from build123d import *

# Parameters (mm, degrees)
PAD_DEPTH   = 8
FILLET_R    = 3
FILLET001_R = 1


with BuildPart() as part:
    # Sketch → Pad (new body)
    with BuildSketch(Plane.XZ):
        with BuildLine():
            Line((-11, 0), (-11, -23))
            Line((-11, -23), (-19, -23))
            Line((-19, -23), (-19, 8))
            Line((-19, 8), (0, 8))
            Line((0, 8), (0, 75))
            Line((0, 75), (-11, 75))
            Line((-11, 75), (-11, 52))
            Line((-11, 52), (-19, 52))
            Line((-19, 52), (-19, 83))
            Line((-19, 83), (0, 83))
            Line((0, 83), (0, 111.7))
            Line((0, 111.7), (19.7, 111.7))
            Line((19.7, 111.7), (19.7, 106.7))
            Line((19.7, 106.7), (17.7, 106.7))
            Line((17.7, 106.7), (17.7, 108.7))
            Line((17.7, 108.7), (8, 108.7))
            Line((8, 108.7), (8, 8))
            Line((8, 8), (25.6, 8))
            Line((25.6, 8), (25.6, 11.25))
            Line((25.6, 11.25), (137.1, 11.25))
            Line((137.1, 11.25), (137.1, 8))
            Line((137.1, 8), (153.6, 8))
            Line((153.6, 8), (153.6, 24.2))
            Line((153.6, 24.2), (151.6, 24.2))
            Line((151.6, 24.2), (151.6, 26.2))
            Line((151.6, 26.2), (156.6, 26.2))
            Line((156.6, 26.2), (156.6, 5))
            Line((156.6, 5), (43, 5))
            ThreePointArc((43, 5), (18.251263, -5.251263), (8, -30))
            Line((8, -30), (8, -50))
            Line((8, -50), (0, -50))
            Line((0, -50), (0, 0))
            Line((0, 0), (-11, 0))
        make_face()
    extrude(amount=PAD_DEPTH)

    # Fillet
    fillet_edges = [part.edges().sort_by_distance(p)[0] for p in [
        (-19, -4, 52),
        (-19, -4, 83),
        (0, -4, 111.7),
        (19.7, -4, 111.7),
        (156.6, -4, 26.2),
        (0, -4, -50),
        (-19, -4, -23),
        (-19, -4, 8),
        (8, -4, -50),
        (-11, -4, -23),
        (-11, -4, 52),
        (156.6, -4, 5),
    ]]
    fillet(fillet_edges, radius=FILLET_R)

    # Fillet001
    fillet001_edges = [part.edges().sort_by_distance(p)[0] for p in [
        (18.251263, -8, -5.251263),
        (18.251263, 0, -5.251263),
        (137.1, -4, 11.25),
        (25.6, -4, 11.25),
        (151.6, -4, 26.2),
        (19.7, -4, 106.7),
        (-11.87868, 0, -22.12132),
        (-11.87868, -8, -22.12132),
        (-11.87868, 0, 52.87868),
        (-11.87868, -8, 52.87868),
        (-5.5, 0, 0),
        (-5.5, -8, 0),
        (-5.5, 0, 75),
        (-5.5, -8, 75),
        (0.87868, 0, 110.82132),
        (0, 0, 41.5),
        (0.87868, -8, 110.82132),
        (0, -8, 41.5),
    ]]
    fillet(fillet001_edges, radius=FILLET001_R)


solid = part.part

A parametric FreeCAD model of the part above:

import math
import FreeCAD as App
import Part
import Sketcher


def edges_at(feature, points):
    """Names of the edges that pass closest to the given points."""
    edges = feature.Shape.Edges
    near = lambda p: min(range(len(edges)), key=lambda i: edges[i].distToShape(Part.Vertex(*p))[0])
    return sorted({f"Edge{near(p) + 1}" for p in points})

doc = App.newDocument("Part")
params = doc.addObject("Spreadsheet::Sheet", "Params")
for row, (alias, value) in enumerate([
    ("sketch1_radius", "35.000001 mm"),
    ("sketch1_width", "11 mm"),
    ("sketch1_width2", "8 mm"),
    ("sketch1_width3", "5 mm"),
    ("sketch1_width4", "2 mm"),
    ("pad1_length", "8 mm"),
    ("fillet_radius", "3 mm"),
    ("fillet2_radius", "1 mm"),
], start=1):
    params.set(f"A{row}", alias)
    params.set(f"B{row}", "=" + value)
    params.setAlias(f"B{row}", alias)

body = doc.addObject("PartDesign::Body", "Body")

# Sketch on XZ plane
sketch1 = doc.addObject("Sketcher::SketchObject", "Sketch")
body.addObject(sketch1)
sketch1.AttachmentSupport = (doc.XZ_Plane, [""])
sketch1.MapMode = "FlatFace"
sketch1.addGeometry([
    Part.LineSegment(App.Vector(-11, -23, 0), App.Vector(-11, 0, 0)),  # 0
    Part.LineSegment(App.Vector(-11, 0, 0), App.Vector(0, 0, 0)),  # 1
    Part.LineSegment(App.Vector(0, 0, 0), App.Vector(0, -50, 0)),  # 2
    Part.LineSegment(App.Vector(0, -50, 0), App.Vector(8, -50, 0)),  # 3
    Part.LineSegment(App.Vector(8, -50, 0), App.Vector(8, -30, 0)),  # 4
    Part.ArcOfCircle(Part.Circle(App.Vector(43, -30, 0), App.Vector(0, 0, 1), 35), math.radians(90), math.radians(180)),  # 5
    Part.LineSegment(App.Vector(43, 5, 0), App.Vector(156.6, 5, 0)),  # 6
    Part.LineSegment(App.Vector(156.6, 5, 0), App.Vector(156.6, 26.2, 0)),  # 7
    Part.LineSegment(App.Vector(156.6, 26.2, 0), App.Vector(151.6, 26.2, 0)),  # 8
    Part.LineSegment(App.Vector(151.6, 26.2, 0), App.Vector(151.6, 24.2, 0)),  # 9
    Part.LineSegment(App.Vector(151.6, 24.2, 0), App.Vector(153.6, 24.2, 0)),  # 10
    Part.LineSegment(App.Vector(153.6, 24.2, 0), App.Vector(153.6, 8, 0)),  # 11
    Part.LineSegment(App.Vector(153.6, 8, 0), App.Vector(137.1, 8, 0)),  # 12
    Part.LineSegment(App.Vector(137.1, 8, 0), App.Vector(137.1, 11.2, 0)),  # 13
    Part.LineSegment(App.Vector(137.1, 11.2, 0), App.Vector(25.6, 11.2, 0)),  # 14
    Part.LineSegment(App.Vector(25.6, 11.2, 0), App.Vector(25.6, 8, 0)),  # 15
    Part.LineSegment(App.Vector(25.6, 8, 0), App.Vector(8, 8, 0)),  # 16
    Part.LineSegment(App.Vector(8, 8, 0), App.Vector(8, 108.7, 0)),  # 17
    Part.LineSegment(App.Vector(8, 108.7, 0), App.Vector(17.7, 108.7, 0)),  # 18
    Part.LineSegment(App.Vector(17.7, 108.7, 0), App.Vector(17.7, 106.7, 0)),  # 19
    Part.LineSegment(App.Vector(17.7, 106.7, 0), App.Vector(19.7, 106.7, 0)),  # 20
    Part.LineSegment(App.Vector(19.7, 106.7, 0), App.Vector(19.7, 111.7, 0)),  # 21
    Part.LineSegment(App.Vector(19.7, 111.7, 0), App.Vector(0, 111.7, 0)),  # 22
    Part.LineSegment(App.Vector(0, 111.7, 0), App.Vector(0, 83, 0)),  # 23
    Part.LineSegment(App.Vector(0, 83, 0), App.Vector(-19, 83, 0)),  # 24
    Part.LineSegment(App.Vector(-19, 83, 0), App.Vector(-19, 52, 0)),  # 25
    Part.LineSegment(App.Vector(-19, 52, 0), App.Vector(-11, 52, 0)),  # 26
    Part.LineSegment(App.Vector(-11, 52, 0), App.Vector(-11, 75, 0)),  # 27
    Part.LineSegment(App.Vector(-11, 75, 0), App.Vector(0, 75, 0)),  # 28
    Part.LineSegment(App.Vector(0, 75, 0), App.Vector(0, 8, 0)),  # 29
    Part.LineSegment(App.Vector(0, 8, 0), App.Vector(-19, 8, 0)),  # 30
    Part.LineSegment(App.Vector(-19, 8, 0), App.Vector(-19, -23, 0)),  # 31
    Part.LineSegment(App.Vector(-19, -23, 0), App.Vector(-11, -23, 0)),  # 32
], False)
sketch1.addConstraint([
    Sketcher.Constraint("Coincident", 0, 2, 1, 1),
    Sketcher.Constraint("Coincident", 1, 2, 2, 1),
    Sketcher.Constraint("Coincident", 2, 2, 3, 1),
    Sketcher.Constraint("Coincident", 3, 2, 4, 1),
    Sketcher.Constraint("Tangent", 4, 2, 5, 2),
    Sketcher.Constraint("Tangent", 5, 1, 6, 1),
    Sketcher.Constraint("Coincident", 6, 2, 7, 1),
    Sketcher.Constraint("Coincident", 7, 2, 8, 1),
    Sketcher.Constraint("Coincident", 8, 2, 9, 1),
    Sketcher.Constraint("Coincident", 9, 2, 10, 1),
    Sketcher.Constraint("Coincident", 10, 2, 11, 1),
    Sketcher.Constraint("Coincident", 11, 2, 12, 1),
    Sketcher.Constraint("Coincident", 12, 2, 13, 1),
    Sketcher.Constraint("Coincident", 13, 2, 14, 1),
    Sketcher.Constraint("Coincident", 14, 2, 15, 1),
    Sketcher.Constraint("Coincident", 15, 2, 16, 1),
    Sketcher.Constraint("Coincident", 16, 2, 17, 1),
    Sketcher.Constraint("Coincident", 17, 2, 18, 1),
    Sketcher.Constraint("Coincident", 18, 2, 19, 1),
    Sketcher.Constraint("Coincident", 19, 2, 20, 1),
    Sketcher.Constraint("Coincident", 20, 2, 21, 1),
    Sketcher.Constraint("Coincident", 21, 2, 22, 1),
    Sketcher.Constraint("Coincident", 22, 2, 23, 1),
    Sketcher.Constraint("Coincident", 23, 2, 24, 1),
    Sketcher.Constraint("Coincident", 24, 2, 25, 1),
    Sketcher.Constraint("Coincident", 25, 2, 26, 1),
    Sketcher.Constraint("Coincident", 26, 2, 27, 1),
    Sketcher.Constraint("Coincident", 27, 2, 28, 1),
    Sketcher.Constraint("Coincident", 28, 2, 29, 1),
    Sketcher.Constraint("Coincident", 29, 2, 30, 1),
    Sketcher.Constraint("Coincident", 30, 2, 31, 1),
    Sketcher.Constraint("Coincident", 31, 2, 32, 1),
    Sketcher.Constraint("Coincident", 32, 2, 0, 1),
    Sketcher.Constraint("Vertical", 0),
    Sketcher.Constraint("Horizontal", 1),
    Sketcher.Constraint("Vertical", 2),
    Sketcher.Constraint("Horizontal", 3),
    Sketcher.Constraint("Vertical", 4),
    Sketcher.Constraint("Horizontal", 6),
    Sketcher.Constraint("Vertical", 7),
    Sketcher.Constraint("Horizontal", 8),
    Sketcher.Constraint("Vertical", 9),
    Sketcher.Constraint("Horizontal", 10),
    Sketcher.Constraint("Vertical", 11),
    Sketcher.Constraint("Horizontal", 12),
    Sketcher.Constraint("Vertical", 13),
    Sketcher.Constraint("Horizontal", 14),
    Sketcher.Constraint("Vertical", 15),
    Sketcher.Constraint("Horizontal", 16),
    Sketcher.Constraint("Vertical", 17),
    Sketcher.Constraint("Horizontal", 18),
    Sketcher.Constraint("Vertical", 19),
    Sketcher.Constraint("Horizontal", 20),
    Sketcher.Constraint("Vertical", 21),
    Sketcher.Constraint("Horizontal", 22),
    Sketcher.Constraint("Vertical", 23),
    Sketcher.Constraint("Horizontal", 24),
    Sketcher.Constraint("Vertical", 25),
    Sketcher.Constraint("Horizontal", 26),
    Sketcher.Constraint("Vertical", 27),
    Sketcher.Constraint("Horizontal", 28),
    Sketcher.Constraint("Vertical", 29),
    Sketcher.Constraint("Horizontal", 30),
    Sketcher.Constraint("Vertical", 31),
    Sketcher.Constraint("Horizontal", 32),
    Sketcher.Constraint("Coincident", 1, 2, -1, 1),
    Sketcher.Constraint("PointOnObject", 22, 2, -2),
    Sketcher.Constraint("PointOnObject", 28, 2, -2),
    Sketcher.Constraint("Horizontal", 12, 2, 15, 2),
    Sketcher.Constraint("Horizontal", 16, 2, 29, 2),
    Sketcher.Constraint("Vertical", 4, 2, 16, 2),
    Sketcher.Constraint("Vertical", 0, 2, 26, 2),
    Sketcher.Constraint("Vertical", 25, 2, 30, 2),
    Sketcher.Constraint("Equal", 10, 20),
    Sketcher.Constraint("Equal", 3, 26),
    Sketcher.Constraint("Equal", 20, 9),
    Sketcher.Constraint("Equal", 9, 19),
    Sketcher.Constraint("Equal", 8, 21),
    Sketcher.Constraint("Equal", 0, 27),
    Sketcher.Constraint("Equal", 25, 31),
    Sketcher.Constraint("Radius", 5, 35.000001),
    Sketcher.Constraint("DistanceX", 1, 1, 1, 2, 11.0),
    Sketcher.Constraint("DistanceX", 3, 1, 3, 2, 8.0),
    Sketcher.Constraint("DistanceX", 8, 2, 8, 1, 5.0),
    Sketcher.Constraint("DistanceX", 10, 1, 10, 2, 2.0),
    Sketcher.Constraint("DistanceY", 0, 1, 0, 2, 23.0),
    Sketcher.Constraint("DistanceY", 2, 2, 2, 1, 50.0),
    Sketcher.Constraint("DistanceY", 4, 1, 4, 2, 20.0),
    Sketcher.Constraint("DistanceY", 25, 2, 25, 1, 31.0),
    Sketcher.Constraint("DistanceY", 29, 2, 29, 1, 67.0),
    Sketcher.Constraint("DistanceX", 6, 1, 6, 2, 113.6),
    Sketcher.Constraint("DistanceX", 12, 2, 12, 1, 16.5),
    Sketcher.Constraint("DistanceX", 14, 2, 14, 1, 111.5),
    Sketcher.Constraint("DistanceX", 18, 1, 18, 2, 9.7),
    Sketcher.Constraint("DistanceY", 7, 1, 7, 2, 21.2),
    Sketcher.Constraint("DistanceY", 17, 1, 17, 2, 100.7),
    Sketcher.Constraint("DistanceY", 13, 1, 13, 2, 3.25),
])
sketch1.setExpression("Constraints[80]", "Params.sketch1_radius")
sketch1.setExpression("Constraints[81]", "Params.sketch1_width")
sketch1.setExpression("Constraints[82]", "Params.sketch1_width2")
sketch1.setExpression("Constraints[83]", "Params.sketch1_width3")
sketch1.setExpression("Constraints[84]", "Params.sketch1_width4")
pad1 = doc.addObject("PartDesign::Pad", "Pad")
body.addObject(pad1)
pad1.Profile = sketch1
pad1.setExpression("Length", "Params.pad1_length")
doc.recompute()

fillet = doc.addObject("PartDesign::Fillet", "Fillet")
body.addObject(fillet)
fillet.Base = (pad1, edges_at(pad1, [
    (-19, -4, 52),
    (-19, -4, 83),
    (0, -4, 111.7),
    (19.7, -4, 111.7),
    (156.6, -4, 26.2),
    (0, -4, -50),
    (-19, -4, -23),
    (-19, -4, 8),
    (8, -4, -50),
    (-11, -4, -23),
    (-11, -4, 52),
    (156.6, -4, 5),
]))
fillet.setExpression("Radius", "Params.fillet_radius")
doc.recompute()

fillet2 = doc.addObject("PartDesign::Fillet", "Fillet001")
body.addObject(fillet2)
fillet2.Base = (fillet, edges_at(fillet, [
    (18.251, -8, -5.251),
    (18.251, 0, -5.251),
    (137.1, -4, 11.25),
    (25.6, -4, 11.25),
    (151.6, -4, 26.2),
    (19.7, -4, 106.7),
    (-11.879, 0, -22.121),
    (-11.879, -8, -22.121),
    (-11.879, 0, 52.879),
    (-11.879, -8, 52.879),
    (-5.5, 0, 0),
    (-5.5, -8, 0),
    (-5.5, 0, 75),
    (-5.5, -8, 75),
    (0.879, 0, 110.821),
    (0, 0, 41.5),
    (0.879, -8, 110.821),
    (0, -8, 41.5),
]))
fillet2.setExpression("Radius", "Params.fillet2_radius")

doc.recompute()
